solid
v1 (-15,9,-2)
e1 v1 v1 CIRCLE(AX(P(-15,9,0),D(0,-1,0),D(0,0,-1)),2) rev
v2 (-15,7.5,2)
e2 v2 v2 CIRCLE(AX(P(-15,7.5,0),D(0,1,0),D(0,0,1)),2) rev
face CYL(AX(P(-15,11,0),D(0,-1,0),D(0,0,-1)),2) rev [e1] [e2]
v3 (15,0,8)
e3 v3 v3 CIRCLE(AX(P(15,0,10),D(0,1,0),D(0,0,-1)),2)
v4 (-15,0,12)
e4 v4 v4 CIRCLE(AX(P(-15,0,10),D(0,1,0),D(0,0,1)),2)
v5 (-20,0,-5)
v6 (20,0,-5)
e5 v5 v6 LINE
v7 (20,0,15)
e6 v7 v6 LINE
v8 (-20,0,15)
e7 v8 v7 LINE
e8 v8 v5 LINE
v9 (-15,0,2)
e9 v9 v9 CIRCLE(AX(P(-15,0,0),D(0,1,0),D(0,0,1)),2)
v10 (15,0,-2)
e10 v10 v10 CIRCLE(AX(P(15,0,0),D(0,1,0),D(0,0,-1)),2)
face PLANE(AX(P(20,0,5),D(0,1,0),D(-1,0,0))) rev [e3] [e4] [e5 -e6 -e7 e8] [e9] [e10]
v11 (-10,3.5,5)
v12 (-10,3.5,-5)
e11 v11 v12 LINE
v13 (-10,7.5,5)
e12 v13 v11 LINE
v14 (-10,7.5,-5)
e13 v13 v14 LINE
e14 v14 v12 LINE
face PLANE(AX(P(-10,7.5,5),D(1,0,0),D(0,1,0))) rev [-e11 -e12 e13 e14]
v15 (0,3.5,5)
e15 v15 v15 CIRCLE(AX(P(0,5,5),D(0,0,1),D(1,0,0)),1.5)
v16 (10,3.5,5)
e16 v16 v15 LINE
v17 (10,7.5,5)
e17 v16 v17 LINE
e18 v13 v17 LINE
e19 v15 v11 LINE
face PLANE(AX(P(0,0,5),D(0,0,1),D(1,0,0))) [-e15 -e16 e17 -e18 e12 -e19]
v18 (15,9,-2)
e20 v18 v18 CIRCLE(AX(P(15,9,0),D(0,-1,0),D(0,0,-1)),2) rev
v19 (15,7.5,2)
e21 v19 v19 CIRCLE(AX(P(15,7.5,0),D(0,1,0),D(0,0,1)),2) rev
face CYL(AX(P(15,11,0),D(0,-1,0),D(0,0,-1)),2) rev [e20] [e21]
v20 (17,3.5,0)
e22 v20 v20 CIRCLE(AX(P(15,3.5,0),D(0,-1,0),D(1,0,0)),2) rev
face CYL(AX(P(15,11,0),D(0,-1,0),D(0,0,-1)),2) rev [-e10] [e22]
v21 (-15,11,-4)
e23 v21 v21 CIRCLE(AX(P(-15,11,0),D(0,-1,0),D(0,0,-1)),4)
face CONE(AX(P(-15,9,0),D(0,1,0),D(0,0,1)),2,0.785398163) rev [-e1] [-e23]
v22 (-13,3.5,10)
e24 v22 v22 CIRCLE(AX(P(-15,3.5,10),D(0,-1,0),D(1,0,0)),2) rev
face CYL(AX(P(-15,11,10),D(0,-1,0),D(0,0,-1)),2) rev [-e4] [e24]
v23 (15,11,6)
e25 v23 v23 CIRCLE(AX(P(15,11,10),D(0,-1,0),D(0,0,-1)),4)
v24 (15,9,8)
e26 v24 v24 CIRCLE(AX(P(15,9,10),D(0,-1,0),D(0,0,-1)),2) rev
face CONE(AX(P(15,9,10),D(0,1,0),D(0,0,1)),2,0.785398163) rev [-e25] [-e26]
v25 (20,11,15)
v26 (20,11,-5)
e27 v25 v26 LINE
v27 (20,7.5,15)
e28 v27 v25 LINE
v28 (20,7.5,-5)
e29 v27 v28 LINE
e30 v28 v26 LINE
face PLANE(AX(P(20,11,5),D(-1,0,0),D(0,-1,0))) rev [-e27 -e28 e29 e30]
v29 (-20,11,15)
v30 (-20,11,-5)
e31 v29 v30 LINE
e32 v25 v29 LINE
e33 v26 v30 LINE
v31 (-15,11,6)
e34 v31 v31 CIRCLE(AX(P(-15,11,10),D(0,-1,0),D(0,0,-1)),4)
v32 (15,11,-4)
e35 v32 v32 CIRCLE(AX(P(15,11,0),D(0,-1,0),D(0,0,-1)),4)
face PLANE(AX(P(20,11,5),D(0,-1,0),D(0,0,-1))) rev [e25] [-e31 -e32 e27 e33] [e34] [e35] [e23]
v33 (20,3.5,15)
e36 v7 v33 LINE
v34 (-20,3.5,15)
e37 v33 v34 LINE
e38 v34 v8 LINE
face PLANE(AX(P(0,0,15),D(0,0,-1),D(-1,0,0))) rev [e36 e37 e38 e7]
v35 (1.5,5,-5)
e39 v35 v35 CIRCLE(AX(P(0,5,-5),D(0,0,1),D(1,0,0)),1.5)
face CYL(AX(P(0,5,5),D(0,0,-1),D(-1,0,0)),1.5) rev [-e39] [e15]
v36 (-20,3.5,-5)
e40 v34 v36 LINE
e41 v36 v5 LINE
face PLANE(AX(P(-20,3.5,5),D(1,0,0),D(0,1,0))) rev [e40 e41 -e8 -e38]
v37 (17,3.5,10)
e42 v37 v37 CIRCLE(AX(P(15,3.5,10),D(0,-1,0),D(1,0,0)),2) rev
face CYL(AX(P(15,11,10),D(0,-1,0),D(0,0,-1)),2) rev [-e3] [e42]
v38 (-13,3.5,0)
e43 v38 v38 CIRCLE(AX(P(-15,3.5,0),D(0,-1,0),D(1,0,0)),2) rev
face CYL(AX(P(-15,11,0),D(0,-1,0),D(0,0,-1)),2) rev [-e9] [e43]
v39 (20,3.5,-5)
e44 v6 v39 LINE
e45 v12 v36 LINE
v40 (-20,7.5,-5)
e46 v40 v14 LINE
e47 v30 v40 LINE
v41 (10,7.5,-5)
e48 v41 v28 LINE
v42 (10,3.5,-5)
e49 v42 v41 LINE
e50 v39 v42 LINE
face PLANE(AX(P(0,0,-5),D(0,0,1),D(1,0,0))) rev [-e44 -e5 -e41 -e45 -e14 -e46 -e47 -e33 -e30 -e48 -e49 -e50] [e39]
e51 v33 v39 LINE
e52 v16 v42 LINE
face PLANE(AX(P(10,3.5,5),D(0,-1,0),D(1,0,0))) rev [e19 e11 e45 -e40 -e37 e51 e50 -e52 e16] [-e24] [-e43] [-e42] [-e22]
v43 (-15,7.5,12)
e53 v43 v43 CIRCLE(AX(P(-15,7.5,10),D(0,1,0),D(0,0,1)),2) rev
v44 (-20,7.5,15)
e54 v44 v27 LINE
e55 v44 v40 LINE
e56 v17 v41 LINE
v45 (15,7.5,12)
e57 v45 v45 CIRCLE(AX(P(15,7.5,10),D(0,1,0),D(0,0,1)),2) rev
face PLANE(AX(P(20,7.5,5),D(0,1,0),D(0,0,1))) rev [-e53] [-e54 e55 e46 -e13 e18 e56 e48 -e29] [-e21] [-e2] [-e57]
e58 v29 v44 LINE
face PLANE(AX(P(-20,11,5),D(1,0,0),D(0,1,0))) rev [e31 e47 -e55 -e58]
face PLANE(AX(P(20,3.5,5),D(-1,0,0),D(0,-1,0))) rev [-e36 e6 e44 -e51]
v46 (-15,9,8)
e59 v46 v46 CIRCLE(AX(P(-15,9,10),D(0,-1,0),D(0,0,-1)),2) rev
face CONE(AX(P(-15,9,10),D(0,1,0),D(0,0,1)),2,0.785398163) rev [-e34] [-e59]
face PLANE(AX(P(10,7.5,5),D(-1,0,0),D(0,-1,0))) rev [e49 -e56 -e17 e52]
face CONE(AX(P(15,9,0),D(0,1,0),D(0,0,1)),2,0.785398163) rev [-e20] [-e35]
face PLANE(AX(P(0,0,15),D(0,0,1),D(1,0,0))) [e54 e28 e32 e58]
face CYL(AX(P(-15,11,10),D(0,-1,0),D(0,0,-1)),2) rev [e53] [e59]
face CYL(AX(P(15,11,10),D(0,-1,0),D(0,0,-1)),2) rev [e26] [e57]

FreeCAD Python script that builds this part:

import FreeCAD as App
import Part
import Sketcher
Q = App.Units.Quantity


def edges_at(feature, points):
    """Names of the edges that pass closest to the given points."""
    edges = feature.Shape.Edges
    near = lambda p: min(range(len(edges)), key=lambda i: edges[i].distToShape(Part.Vertex(*p))[0])
    return sorted({f"Edge{near(p) + 1}" for p in points})

doc = App.newDocument("Part")
params = doc.addObject("Spreadsheet::Sheet", "Params")
for row, (alias, value) in enumerate([
    ("sketch1_diameter", "3 mm"),
    ("sketch1_width", "40 mm"),
    ("sketch1_width2", "10 mm"),
    ("sketch1_height", "4 mm"),
    ("sketch1_height2", "3.5 mm"),
    ("pad1_length", "10 mm"),
    ("sketch2_width", "40 mm"),
    ("sketch2_height", "3.5 mm"),
    ("pad2_length", "10 mm"),
    ("sketch3_diameter", "4 mm"),
    ("chamfer_size", "2 mm"),
], start=1):
    params.set(f"A{row}", alias)
    params.set(f"B{row}", "=" + value)
    params.setAlias(f"B{row}", alias)

body = doc.addObject("PartDesign::Body", "Body")

# Sketch on XY plane
sketch1 = body.newObject("Sketcher::SketchObject", "Sketch")
sketch1.AttachmentSupport = (doc.getObject("XY_Plane"), [""])
sketch1.MapMode = "FlatFace"
sketch1.addGeometry([
    Part.LineSegment(App.Vector(20, 11, 0), App.Vector(-20, 11, 0)),  # 0
    Part.LineSegment(App.Vector(-20, 11, 0), App.Vector(-20, 7.5, 0)),  # 1
    Part.LineSegment(App.Vector(-20, 7.5, 0), App.Vector(-10, 7.5, 0)),  # 2
    Part.LineSegment(App.Vector(-10, 7.5, 0), App.Vector(-10, 3.5, 0)),  # 3
    Part.LineSegment(App.Vector(-10, 3.5, 0), App.Vector(-20, 3.5, 0)),  # 4
    Part.LineSegment(App.Vector(-20, 3.5, 0), App.Vector(-20, 0, 0)),  # 5
    Part.LineSegment(App.Vector(-20, 0, 0), App.Vector(20, 0, 0)),  # 6
    Part.LineSegment(App.Vector(20, 0, 0), App.Vector(20, 3.5, 0)),  # 7
    Part.LineSegment(App.Vector(20, 3.5, 0), App.Vector(10, 3.5, 0)),  # 8
    Part.LineSegment(App.Vector(10, 3.5, 0), App.Vector(10, 7.5, 0)),  # 9
    Part.LineSegment(App.Vector(10, 7.5, 0), App.Vector(20, 7.5, 0)),  # 10
    Part.LineSegment(App.Vector(20, 7.5, 0), App.Vector(20, 11, 0)),  # 11
    Part.Circle(App.Vector(0, 5, 0), App.Vector(0, 0, 1), 1.5),  # 12
], False)
sketch1.addConstraint([
    Sketcher.Constraint("Coincident", 0, 2, 1, 1),
    Sketcher.Constraint("Coincident", 1, 2, 2, 1),
    Sketcher.Constraint("Coincident", 2, 2, 3, 1),
    Sketcher.Constraint("Coincident", 3, 2, 4, 1),
    Sketcher.Constraint("Coincident", 4, 2, 5, 1),
    Sketcher.Constraint("Coincident", 5, 2, 6, 1),
    Sketcher.Constraint("Coincident", 6, 2, 7, 1),
    Sketcher.Constraint("Coincident", 7, 2, 8, 1),
    Sketcher.Constraint("Coincident", 8, 2, 9, 1),
    Sketcher.Constraint("Coincident", 9, 2, 10, 1),
    Sketcher.Constraint("Coincident", 10, 2, 11, 1),
    Sketcher.Constraint("Coincident", 11, 2, 0, 1),
    Sketcher.Constraint("Horizontal", 0),
    Sketcher.Constraint("Vertical", 1),
    Sketcher.Constraint("Horizontal", 2),
    Sketcher.Constraint("Vertical", 3),
    Sketcher.Constraint("Horizontal", 4),
    Sketcher.Constraint("Vertical", 5),
    Sketcher.Constraint("Horizontal", 6),
    Sketcher.Constraint("Vertical", 7),
    Sketcher.Constraint("Horizontal", 8),
    Sketcher.Constraint("Vertical", 9),
    Sketcher.Constraint("Horizontal", 10),
    Sketcher.Constraint("Vertical", 11),
    Sketcher.Constraint("Symmetric", 5, 2, 6, 2, -1, 1),
    Sketcher.Constraint("Symmetric", 3, 2, 8, 2, -2),
    Sketcher.Constraint("Symmetric", 1, 2, 10, 2, -2),
    Sketcher.Constraint("PointOnObject", 12, 3, -2),
    Sketcher.Constraint("Vertical", 1, 2, 4, 2),
    Sketcher.Constraint("Equal", 1, 5),
    Sketcher.Constraint("Diameter", 12, Q("3 mm")),
    Sketcher.Constraint("DistanceX", 0, 2, 0, 1, Q("40 mm")),
    Sketcher.Constraint("DistanceX", 2, 1, 2, 2, Q("10 mm")),
    Sketcher.Constraint("DistanceY", 3, 2, 3, 1, Q("4 mm")),
    Sketcher.Constraint("DistanceY", 1, 2, 1, 1, Q("3.5 mm")),
    Sketcher.Constraint("DistanceY", -1, 1, 12, 3, Q("5 mm")),
])
sketch1.setExpression("Constraints[30]", "Params.sketch1_diameter")
sketch1.setExpression("Constraints[31]", "Params.sketch1_width")
sketch1.setExpression("Constraints[32]", "Params.sketch1_width2")
sketch1.setExpression("Constraints[33]", "Params.sketch1_height")
sketch1.setExpression("Constraints[34]", "Params.sketch1_height2")
pad1 = body.newObject("PartDesign::Pad", "Pad")
pad1.Profile = sketch1
pad1.setExpression("Length", "Params.pad1_length")
pad1.Midplane = True

# Sketch on XY plane
sketch2 = body.newObject("Sketcher::SketchObject", "Sketch001")
sketch2.AttachmentSupport = (doc.getObject("XY_Plane"), [""])
sketch2.MapMode = "FlatFace"
sketch2.AttachmentOffset = App.Placement(App.Vector(0, 0, 5), App.Rotation())
sketch2.addGeometry([
    Part.LineSegment(App.Vector(-20, 11, 0), App.Vector(-20, 7.5, 0)),  # 0
    Part.LineSegment(App.Vector(-20, 7.5, 0), App.Vector(20, 7.5, 0)),  # 1
    Part.LineSegment(App.Vector(20, 7.5, 0), App.Vector(20, 11, 0)),  # 2
    Part.LineSegment(App.Vector(20, 11, 0), App.Vector(-20, 11, 0)),  # 3
    Part.LineSegment(App.Vector(-20, 3.5, 0), App.Vector(-20, 0, 0)),  # 4
    Part.LineSegment(App.Vector(-20, 0, 0), App.Vector(20, 0, 0)),  # 5
    Part.LineSegment(App.Vector(20, 0, 0), App.Vector(20, 3.5, 0)),  # 6
    Part.LineSegment(App.Vector(20, 3.5, 0), App.Vector(-20, 3.5, 0)),  # 7
], False)
sketch2.addConstraint([
    Sketcher.Constraint("Coincident", 0, 2, 1, 1),
    Sketcher.Constraint("Coincident", 1, 2, 2, 1),
    Sketcher.Constraint("Coincident", 2, 2, 3, 1),
    Sketcher.Constraint("Coincident", 3, 2, 0, 1),
    Sketcher.Constraint("Coincident", 4, 2, 5, 1),
    Sketcher.Constraint("Coincident", 5, 2, 6, 1),
    Sketcher.Constraint("Coincident", 6, 2, 7, 1),
    Sketcher.Constraint("Coincident", 7, 2, 4, 1),
    Sketcher.Constraint("Vertical", 0),
    Sketcher.Constraint("Horizontal", 1),
    Sketcher.Constraint("Vertical", 2),
    Sketcher.Constraint("Horizontal", 3),
    Sketcher.Constraint("Vertical", 4),
    Sketcher.Constraint("Horizontal", 5),
    Sketcher.Constraint("Vertical", 6),
    Sketcher.Constraint("Horizontal", 7),
    Sketcher.Constraint("Symmetric", 4, 2, 5, 2, -1, 1),
    Sketcher.Constraint("Vertical", 3, 2, 4, 2),
    Sketcher.Constraint("Vertical", 2, 2, 5, 2),
    Sketcher.Constraint("Equal", 2, 4),
    Sketcher.Constraint("DistanceX", 1, 1, 1, 2, Q("40 mm")),
    Sketcher.Constraint("DistanceY", 0, 2, 0, 1, Q("3.5 mm")),
    Sketcher.Constraint("DistanceY", -1, 1, 2, 2, Q("11 mm")),
])
sketch2.setExpression("Constraints[20]", "Params.sketch2_width")
sketch2.setExpression("Constraints[21]", "Params.sketch2_height")
pad2 = body.newObject("PartDesign::Pad", "Pad001")
pad2.Profile = sketch2
pad2.setExpression("Length", "Params.pad2_length")

# Sketch on XZ plane
sketch3 = body.newObject("Sketcher::SketchObject", "Sketch002")
sketch3.AttachmentSupport = (doc.getObject("XZ_Plane"), [""])
sketch3.MapMode = "FlatFace"
sketch3.addGeometry([
    Part.Circle(App.Vector(-15, 0, 0), App.Vector(0, 0, 1), 2),
    Part.Circle(App.Vector(15, 0, 0), App.Vector(0, 0, 1), 2),
    Part.Circle(App.Vector(-15, 10, 0), App.Vector(0, 0, 1), 2),
    Part.Circle(App.Vector(15, 10, 0), App.Vector(0, 0, 1), 2),
], False)
sketch3.addConstraint([
    Sketcher.Constraint("Equal", 0, 1),
    Sketcher.Constraint("Equal", 1, 2),
    Sketcher.Constraint("Equal", 2, 3),
    Sketcher.Constraint("Symmetric", 0, 3, 1, 3, -1, 1),
    Sketcher.Constraint("Symmetric", 2, 3, 3, 3, -2),
    Sketcher.Constraint("PointOnObject", 0, 3, -1),
    Sketcher.Constraint("Vertical", 0, 3, 2, 3),
    Sketcher.Constraint("Diameter", 0, Q("4 mm")),
    Sketcher.Constraint("DistanceX", 0, 3, -1, 1, Q("15 mm")),
    Sketcher.Constraint("DistanceY", -1, 1, 2, 3, Q("10 mm")),
])
sketch3.setExpression("Constraints[7]", "Params.sketch3_diameter")
pocket1 = body.newObject("PartDesign::Pocket", "Pocket")
pocket1.Profile = sketch3
pocket1.Type = "ThroughAll"
doc.recompute()

chamfer = body.newObject("PartDesign::Chamfer", "Chamfer")
chamfer.Base = (pocket1, edges_at(pocket1, [
    (15, 11, 2),
    (-15, 11, 8),
    (15, 11, 12),
    (-15, 11, -2),
]))
chamfer.setExpression("Size", "Params.chamfer_size")

doc.recompute()
